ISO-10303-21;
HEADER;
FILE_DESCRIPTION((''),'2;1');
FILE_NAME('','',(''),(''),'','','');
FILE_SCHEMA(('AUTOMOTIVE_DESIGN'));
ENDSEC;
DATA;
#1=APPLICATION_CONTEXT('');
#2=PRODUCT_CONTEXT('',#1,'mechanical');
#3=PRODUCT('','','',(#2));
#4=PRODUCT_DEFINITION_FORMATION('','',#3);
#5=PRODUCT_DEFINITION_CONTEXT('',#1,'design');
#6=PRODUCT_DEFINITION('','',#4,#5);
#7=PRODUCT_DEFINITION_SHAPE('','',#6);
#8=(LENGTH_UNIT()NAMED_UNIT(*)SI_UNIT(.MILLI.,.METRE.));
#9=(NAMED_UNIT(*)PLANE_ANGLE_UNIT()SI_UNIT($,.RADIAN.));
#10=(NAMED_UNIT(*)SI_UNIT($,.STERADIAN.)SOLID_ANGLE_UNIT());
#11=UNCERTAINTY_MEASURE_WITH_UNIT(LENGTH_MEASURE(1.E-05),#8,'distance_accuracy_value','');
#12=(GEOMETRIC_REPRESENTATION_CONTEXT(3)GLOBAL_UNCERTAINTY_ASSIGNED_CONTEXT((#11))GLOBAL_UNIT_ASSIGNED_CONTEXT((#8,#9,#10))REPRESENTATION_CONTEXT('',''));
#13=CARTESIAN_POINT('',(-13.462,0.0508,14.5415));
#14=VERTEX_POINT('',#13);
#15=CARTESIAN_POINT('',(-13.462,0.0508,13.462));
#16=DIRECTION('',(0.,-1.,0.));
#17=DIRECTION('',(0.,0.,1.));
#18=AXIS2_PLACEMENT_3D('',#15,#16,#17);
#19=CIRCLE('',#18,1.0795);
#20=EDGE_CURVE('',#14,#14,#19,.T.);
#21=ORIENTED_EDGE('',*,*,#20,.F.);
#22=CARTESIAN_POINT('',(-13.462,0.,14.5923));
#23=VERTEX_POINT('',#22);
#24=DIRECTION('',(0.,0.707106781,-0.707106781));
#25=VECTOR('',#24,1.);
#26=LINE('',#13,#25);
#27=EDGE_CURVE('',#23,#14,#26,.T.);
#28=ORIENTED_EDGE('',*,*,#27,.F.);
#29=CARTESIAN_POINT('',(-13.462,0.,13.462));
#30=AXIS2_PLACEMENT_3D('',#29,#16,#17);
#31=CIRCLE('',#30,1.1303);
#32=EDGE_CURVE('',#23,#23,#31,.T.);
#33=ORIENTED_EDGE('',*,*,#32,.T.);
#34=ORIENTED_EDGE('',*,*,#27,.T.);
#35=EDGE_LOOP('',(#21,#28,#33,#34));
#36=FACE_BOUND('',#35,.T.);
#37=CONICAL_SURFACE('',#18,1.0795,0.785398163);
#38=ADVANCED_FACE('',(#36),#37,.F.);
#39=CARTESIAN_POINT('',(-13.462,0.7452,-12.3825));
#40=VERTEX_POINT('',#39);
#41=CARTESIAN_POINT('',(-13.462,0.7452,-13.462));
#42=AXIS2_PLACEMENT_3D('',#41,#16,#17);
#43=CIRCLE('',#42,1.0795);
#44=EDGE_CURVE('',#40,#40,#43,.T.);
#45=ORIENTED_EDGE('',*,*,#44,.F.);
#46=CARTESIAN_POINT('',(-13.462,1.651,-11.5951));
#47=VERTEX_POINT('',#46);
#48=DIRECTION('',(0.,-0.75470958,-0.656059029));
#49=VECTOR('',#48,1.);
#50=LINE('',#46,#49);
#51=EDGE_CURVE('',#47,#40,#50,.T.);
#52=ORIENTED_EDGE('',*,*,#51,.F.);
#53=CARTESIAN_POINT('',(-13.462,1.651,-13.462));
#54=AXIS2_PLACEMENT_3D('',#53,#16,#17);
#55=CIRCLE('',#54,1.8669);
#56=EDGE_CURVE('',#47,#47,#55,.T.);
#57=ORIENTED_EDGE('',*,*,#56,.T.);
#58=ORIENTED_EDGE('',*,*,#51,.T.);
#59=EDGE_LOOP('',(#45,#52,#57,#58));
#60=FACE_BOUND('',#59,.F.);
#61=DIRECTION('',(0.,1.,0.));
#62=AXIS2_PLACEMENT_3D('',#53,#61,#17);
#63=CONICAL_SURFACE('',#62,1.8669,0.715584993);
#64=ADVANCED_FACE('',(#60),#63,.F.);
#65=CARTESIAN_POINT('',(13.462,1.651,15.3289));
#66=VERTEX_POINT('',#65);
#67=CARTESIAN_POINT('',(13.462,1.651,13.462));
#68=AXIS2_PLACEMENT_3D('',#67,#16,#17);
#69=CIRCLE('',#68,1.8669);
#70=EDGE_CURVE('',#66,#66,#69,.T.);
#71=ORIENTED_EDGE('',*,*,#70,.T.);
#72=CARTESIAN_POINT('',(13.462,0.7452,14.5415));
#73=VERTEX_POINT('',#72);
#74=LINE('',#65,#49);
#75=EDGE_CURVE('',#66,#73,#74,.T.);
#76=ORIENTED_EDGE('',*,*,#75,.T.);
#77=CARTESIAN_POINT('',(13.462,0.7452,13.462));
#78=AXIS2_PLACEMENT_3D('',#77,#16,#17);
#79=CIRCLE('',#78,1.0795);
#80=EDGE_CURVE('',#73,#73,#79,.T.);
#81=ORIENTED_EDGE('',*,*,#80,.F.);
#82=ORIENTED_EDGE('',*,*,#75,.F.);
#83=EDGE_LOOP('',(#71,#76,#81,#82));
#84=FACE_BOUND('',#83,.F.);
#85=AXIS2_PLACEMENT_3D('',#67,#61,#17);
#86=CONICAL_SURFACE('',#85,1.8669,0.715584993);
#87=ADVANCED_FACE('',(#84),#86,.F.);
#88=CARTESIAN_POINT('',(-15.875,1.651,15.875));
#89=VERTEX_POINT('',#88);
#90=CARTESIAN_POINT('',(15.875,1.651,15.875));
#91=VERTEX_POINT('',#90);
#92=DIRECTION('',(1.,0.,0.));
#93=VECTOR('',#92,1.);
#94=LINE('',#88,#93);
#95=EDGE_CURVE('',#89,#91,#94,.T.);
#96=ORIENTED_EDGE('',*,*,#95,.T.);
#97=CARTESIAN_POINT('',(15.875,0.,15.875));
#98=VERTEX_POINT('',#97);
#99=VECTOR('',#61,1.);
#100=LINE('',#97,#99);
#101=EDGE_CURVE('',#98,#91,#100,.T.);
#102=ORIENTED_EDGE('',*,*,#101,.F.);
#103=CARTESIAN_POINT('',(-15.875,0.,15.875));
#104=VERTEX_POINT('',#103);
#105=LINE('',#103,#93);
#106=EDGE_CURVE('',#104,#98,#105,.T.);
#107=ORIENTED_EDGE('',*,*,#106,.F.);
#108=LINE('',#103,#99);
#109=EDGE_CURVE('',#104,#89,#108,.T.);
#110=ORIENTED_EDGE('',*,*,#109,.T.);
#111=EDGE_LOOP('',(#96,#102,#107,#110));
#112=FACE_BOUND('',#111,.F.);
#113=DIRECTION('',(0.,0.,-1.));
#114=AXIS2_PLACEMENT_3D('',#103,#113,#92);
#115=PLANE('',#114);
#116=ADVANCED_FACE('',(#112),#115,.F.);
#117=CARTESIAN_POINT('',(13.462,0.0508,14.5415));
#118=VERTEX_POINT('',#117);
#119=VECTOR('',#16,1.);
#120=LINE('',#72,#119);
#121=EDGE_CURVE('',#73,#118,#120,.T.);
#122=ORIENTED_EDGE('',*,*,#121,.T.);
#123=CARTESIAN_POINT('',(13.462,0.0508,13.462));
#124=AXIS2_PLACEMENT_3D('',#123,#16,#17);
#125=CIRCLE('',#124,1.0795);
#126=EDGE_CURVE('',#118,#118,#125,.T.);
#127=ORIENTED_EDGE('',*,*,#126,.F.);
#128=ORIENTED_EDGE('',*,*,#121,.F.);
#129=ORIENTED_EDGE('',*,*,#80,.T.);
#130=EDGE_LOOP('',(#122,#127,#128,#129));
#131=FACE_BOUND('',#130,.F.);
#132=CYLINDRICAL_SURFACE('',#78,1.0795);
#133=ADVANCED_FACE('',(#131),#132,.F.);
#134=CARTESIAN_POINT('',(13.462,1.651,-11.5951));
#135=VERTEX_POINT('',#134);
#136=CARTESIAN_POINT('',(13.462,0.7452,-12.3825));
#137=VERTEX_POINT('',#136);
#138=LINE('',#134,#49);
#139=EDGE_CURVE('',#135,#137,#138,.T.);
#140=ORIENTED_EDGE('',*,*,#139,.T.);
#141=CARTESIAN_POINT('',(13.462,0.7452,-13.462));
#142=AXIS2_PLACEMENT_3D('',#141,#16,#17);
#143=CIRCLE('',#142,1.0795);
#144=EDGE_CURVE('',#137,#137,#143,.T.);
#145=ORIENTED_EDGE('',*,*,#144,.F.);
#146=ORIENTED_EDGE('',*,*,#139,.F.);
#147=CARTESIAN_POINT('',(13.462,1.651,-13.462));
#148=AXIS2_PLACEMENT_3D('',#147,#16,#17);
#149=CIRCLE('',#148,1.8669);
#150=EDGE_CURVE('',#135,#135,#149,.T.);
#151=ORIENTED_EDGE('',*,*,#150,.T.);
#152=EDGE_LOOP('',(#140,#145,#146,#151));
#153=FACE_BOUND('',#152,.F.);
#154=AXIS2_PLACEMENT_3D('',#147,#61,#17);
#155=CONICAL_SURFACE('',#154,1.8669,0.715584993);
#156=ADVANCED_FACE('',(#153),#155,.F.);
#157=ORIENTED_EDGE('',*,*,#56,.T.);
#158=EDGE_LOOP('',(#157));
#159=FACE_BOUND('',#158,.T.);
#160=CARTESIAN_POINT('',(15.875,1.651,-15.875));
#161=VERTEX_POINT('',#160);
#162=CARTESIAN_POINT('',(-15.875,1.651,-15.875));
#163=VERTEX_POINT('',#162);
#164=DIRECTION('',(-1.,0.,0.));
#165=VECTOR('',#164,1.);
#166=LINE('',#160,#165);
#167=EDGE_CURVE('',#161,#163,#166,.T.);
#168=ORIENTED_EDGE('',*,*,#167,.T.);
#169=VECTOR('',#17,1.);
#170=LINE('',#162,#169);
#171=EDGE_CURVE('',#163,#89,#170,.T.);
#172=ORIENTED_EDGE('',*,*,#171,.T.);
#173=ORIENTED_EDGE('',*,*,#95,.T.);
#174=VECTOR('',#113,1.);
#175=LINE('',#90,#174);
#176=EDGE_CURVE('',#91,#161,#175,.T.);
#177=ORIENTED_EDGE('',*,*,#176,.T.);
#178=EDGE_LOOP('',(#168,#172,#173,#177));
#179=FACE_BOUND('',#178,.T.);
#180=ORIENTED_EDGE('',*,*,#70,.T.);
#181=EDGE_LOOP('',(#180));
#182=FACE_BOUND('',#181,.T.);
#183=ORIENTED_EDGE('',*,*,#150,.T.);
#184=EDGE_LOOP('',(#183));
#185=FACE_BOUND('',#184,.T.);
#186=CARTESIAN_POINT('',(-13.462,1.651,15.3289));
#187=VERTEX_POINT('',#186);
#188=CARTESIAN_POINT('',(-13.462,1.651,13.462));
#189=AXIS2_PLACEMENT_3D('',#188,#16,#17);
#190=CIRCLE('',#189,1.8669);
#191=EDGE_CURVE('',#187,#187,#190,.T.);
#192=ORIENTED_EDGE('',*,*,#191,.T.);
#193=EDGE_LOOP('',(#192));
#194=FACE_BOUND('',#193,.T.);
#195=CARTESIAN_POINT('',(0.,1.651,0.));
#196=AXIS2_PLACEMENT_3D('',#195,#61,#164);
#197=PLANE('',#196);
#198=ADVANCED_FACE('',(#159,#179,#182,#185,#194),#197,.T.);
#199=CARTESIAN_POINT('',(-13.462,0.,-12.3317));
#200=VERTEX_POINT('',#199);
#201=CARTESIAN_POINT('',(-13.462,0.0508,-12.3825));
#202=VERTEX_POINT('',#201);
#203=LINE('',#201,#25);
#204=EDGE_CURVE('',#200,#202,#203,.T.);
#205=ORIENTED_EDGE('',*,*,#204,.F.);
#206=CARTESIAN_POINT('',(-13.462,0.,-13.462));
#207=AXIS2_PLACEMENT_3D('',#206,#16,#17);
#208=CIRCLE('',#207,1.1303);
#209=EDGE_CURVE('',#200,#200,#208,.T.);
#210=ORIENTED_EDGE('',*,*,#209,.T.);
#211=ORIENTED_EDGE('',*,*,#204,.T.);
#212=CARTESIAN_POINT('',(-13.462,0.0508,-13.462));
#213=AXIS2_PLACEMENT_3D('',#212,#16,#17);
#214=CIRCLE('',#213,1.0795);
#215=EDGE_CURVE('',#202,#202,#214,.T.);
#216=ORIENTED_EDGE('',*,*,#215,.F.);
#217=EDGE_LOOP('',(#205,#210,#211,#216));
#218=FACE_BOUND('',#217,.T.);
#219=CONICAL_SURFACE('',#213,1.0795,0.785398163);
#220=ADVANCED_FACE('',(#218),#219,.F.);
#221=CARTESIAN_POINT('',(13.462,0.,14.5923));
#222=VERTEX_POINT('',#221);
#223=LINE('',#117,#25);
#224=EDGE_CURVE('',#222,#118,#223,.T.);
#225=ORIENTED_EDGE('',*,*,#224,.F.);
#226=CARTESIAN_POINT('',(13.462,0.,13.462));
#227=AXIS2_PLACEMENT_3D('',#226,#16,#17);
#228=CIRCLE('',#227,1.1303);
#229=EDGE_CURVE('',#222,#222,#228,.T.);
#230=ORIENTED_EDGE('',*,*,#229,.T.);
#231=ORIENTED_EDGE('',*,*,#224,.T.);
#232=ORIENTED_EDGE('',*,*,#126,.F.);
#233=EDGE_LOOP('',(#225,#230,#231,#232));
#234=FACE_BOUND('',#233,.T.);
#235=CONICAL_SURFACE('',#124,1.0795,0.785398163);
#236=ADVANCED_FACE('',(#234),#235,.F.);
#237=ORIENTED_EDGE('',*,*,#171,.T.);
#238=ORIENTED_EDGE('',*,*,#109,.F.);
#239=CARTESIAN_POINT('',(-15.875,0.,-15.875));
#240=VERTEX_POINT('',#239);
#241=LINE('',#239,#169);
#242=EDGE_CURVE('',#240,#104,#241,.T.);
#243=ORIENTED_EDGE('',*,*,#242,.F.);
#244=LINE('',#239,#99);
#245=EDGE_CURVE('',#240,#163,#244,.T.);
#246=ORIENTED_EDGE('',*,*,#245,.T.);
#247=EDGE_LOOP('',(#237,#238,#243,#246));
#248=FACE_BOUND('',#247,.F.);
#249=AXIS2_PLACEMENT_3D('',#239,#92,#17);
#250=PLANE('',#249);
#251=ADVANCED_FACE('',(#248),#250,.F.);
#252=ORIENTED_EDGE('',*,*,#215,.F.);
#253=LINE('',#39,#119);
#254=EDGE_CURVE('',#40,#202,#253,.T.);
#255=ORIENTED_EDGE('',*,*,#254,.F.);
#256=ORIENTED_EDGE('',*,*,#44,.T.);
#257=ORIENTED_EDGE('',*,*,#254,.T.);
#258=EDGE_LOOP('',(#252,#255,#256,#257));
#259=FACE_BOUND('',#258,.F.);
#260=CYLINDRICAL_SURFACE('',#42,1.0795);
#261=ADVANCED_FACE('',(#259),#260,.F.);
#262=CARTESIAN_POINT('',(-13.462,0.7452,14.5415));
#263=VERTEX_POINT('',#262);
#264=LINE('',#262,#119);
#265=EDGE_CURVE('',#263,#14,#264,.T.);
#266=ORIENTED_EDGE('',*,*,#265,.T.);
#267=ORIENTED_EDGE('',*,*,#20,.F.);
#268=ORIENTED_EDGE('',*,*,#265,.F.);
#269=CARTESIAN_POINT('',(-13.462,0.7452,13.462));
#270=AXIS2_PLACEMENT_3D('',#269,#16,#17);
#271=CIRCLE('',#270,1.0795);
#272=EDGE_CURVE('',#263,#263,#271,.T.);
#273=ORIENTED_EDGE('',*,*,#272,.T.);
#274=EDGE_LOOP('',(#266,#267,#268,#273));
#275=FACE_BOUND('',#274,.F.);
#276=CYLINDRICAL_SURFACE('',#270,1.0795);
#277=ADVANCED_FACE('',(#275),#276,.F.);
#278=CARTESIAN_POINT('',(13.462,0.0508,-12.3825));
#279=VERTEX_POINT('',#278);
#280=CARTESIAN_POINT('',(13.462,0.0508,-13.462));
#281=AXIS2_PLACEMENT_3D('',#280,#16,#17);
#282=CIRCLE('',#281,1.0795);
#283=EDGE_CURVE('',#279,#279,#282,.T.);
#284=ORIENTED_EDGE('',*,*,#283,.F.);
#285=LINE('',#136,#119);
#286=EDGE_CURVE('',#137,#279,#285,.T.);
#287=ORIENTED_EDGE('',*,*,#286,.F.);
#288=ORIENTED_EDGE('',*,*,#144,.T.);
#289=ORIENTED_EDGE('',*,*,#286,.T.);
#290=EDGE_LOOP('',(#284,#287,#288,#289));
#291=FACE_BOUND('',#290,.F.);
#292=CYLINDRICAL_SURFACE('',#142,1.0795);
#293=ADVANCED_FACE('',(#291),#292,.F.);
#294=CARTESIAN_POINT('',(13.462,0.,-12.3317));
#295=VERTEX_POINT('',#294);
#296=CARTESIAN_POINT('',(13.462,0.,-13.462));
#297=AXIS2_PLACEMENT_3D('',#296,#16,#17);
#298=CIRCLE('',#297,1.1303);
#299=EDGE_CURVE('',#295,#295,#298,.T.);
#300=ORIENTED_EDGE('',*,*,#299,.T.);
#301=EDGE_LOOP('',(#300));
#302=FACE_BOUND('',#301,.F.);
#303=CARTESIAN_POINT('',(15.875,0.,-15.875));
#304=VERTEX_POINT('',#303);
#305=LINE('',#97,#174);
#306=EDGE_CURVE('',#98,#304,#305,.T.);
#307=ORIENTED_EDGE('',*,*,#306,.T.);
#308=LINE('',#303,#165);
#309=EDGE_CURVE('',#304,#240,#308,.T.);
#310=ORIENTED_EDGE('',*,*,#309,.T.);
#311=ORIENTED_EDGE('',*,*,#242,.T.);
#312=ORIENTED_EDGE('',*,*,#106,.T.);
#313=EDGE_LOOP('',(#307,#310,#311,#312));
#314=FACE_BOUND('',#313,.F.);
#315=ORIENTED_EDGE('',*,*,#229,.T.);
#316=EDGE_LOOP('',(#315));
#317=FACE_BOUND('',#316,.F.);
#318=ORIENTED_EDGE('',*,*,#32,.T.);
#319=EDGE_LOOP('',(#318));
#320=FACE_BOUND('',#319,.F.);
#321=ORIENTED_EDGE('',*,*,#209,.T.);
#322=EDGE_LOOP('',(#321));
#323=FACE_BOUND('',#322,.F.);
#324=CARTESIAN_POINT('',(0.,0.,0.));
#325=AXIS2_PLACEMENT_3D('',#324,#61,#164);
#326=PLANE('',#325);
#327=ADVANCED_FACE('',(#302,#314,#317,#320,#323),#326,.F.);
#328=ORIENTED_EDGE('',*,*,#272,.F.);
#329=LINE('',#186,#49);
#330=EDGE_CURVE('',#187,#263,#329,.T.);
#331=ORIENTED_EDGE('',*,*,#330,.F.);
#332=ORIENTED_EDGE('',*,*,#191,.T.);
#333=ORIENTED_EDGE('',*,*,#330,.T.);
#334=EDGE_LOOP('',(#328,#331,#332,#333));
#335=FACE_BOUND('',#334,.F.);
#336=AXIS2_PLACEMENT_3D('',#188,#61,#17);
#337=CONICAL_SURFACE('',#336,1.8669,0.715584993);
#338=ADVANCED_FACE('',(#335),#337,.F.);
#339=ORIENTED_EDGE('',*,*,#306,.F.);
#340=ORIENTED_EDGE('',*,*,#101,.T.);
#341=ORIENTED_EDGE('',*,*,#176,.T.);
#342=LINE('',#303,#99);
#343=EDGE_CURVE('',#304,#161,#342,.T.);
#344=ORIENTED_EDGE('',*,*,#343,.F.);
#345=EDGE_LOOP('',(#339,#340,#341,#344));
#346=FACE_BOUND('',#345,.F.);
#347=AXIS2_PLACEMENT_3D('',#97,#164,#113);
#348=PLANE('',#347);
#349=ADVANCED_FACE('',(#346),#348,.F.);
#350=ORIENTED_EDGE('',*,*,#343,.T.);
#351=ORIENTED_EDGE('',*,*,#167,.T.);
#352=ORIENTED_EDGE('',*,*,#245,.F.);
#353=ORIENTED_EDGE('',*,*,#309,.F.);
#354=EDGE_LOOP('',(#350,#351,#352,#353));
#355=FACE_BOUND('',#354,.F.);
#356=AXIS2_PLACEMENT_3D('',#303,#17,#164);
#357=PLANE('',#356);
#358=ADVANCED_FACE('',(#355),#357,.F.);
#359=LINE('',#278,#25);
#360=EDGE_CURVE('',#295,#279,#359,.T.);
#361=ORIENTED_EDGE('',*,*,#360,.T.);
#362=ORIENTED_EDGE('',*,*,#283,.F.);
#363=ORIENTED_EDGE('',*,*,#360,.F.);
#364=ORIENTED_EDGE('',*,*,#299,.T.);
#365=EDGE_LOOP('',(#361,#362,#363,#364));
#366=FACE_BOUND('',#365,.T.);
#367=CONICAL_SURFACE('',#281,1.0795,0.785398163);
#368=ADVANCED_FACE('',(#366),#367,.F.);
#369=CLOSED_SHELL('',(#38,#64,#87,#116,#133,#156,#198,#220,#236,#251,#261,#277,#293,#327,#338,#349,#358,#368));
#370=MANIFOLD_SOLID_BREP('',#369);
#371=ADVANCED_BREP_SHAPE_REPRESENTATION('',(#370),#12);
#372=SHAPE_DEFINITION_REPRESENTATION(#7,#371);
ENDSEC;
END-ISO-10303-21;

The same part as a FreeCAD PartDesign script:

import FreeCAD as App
import Part
import Sketcher
Q = App.Units.Quantity


def edges_at(feature, points):
    """Names of the edges that pass closest to the given points."""
    edges = feature.Shape.Edges
    near = lambda p: min(range(len(edges)), key=lambda i: edges[i].distToShape(Part.Vertex(*p))[0])
    return sorted({f"Edge{near(p) + 1}" for p in points})

doc = App.newDocument("Part")
params = doc.addObject("Spreadsheet::Sheet", "Params")
for row, (alias, value) in enumerate([
    ("sketch1_width", "1.25 in"),
    ("pad1_length", "0.065 in"),
    ("sketch2_diameter", "0.085 in"),
    ("hole_diameter", "0.085 in"),
    ("hole_depth", "0.065 in"),
    ("hole_csink_diameter", "0.147 in"),
    ("sketch3_diameter", "0.085 in"),
    ("hole2_diameter", "0.085 in"),
    ("hole2_depth", "0.065 in"),
    ("hole2_csink_diameter", "0.147 in"),
    ("sketch4_diameter", "0.085 in"),
    ("hole3_diameter", "0.085 in"),
    ("hole3_depth", "0.065 in"),
    ("hole3_csink_diameter", "0.147 in"),
    ("sketch5_diameter", "0.085 in"),
    ("hole4_diameter", "0.085 in"),
    ("hole4_depth", "0.065 in"),
    ("hole4_csink_diameter", "0.147 in"),
    ("chamfer_size", "0.002 in"),
    ("chamfer2_size", "0.002 in"),
    ("chamfer3_size", "0.002 in"),
    ("chamfer4_size", "0.002 in"),
], start=1):
    params.set(f"A{row}", alias)
    params.set(f"B{row}", "=" + value)
    params.setAlias(f"B{row}", alias)

body = doc.addObject("PartDesign::Body", "Body")

# Sketch on XZ plane
sketch1 = body.newObject("Sketcher::SketchObject", "Sketch")
sketch1.AttachmentSupport = (doc.getObject("XZ_Plane"), [""])
sketch1.MapMode = "FlatFace"
sketch1.addGeometry([
    Part.LineSegment(App.Vector(15.875, 15.875, 0), App.Vector(15.875, -15.875, 0)),
    Part.LineSegment(App.Vector(15.875, -15.875, 0), App.Vector(-15.875, -15.875, 0)),
    Part.LineSegment(App.Vector(-15.875, -15.875, 0), App.Vector(-15.875, 15.875, 0)),
    Part.LineSegment(App.Vector(-15.875, 15.875, 0), App.Vector(15.875, 15.875, 0)),
], False)
sketch1.addConstraint([
    Sketcher.Constraint("Coincident", 0, 2, 1, 1),
    Sketcher.Constraint("Coincident", 1, 2, 2, 1),
    Sketcher.Constraint("Coincident", 2, 2, 3, 1),
    Sketcher.Constraint("Coincident", 3, 2, 0, 1),
    Sketcher.Constraint("Vertical", 0),
    Sketcher.Constraint("Horizontal", 1),
    Sketcher.Constraint("Vertical", 2),
    Sketcher.Constraint("Horizontal", 3),
    Sketcher.Constraint("Symmetric", 0, 2, 2, 2, -1, 1),
    Sketcher.Constraint("Equal", 3, 0),
    Sketcher.Constraint("DistanceX", 1, 2, 1, 1, Q("1.25 in")),
])
sketch1.setExpression("Constraints[10]", "Params.sketch1_width")
pad1 = body.newObject("PartDesign::Pad", "Pad")
pad1.Profile = sketch1
pad1.setExpression("Length", "Params.pad1_length")
pad1.Reversed = True

# Sketch on XZ plane
sketch2 = body.newObject("Sketcher::SketchObject", "Sketch001")
sketch2.AttachmentSupport = (doc.getObject("XZ_Plane"), [""])
sketch2.MapMode = "FlatFace"
sketch2.AttachmentOffset = App.Placement(App.Vector(0, 0, -0.065 * 25.4), App.Rotation())
sketch2.addGeometry(Part.Circle(App.Vector(-13.462, 13.462, 0), App.Vector(0, 0, 1), 1.0795), False)
sketch2.addConstraint([
    Sketcher.Constraint("Diameter", 0, Q("0.085 in")),
    Sketcher.Constraint("DistanceX", 0, 3, -1, 1, Q("0.53 in")),
    Sketcher.Constraint("DistanceY", -1, 1, 0, 3, Q("0.53 in")),
])
sketch2.setExpression("Constraints[0]", "Params.sketch2_diameter")
doc.recompute()
hole = body.newObject("PartDesign::Hole", "Hole")
hole.Profile = sketch2
hole.ThreadType = "None"
hole.setExpression("Diameter", "Params.hole_diameter")
hole.DepthType = "Dimension"
hole.setExpression("Depth", "Params.hole_depth")
hole.DrillPoint = "Angled"
hole.DrillPointAngle = 118
hole.HoleCutType = "Countersink"
hole.setExpression("HoleCutDiameter", "Params.hole_csink_diameter")
hole.HoleCutCountersinkAngle = 82
hole.Reversed = True

# Sketch on XZ plane
sketch3 = body.newObject("Sketcher::SketchObject", "Sketch002")
sketch3.AttachmentSupport = (doc.getObject("XZ_Plane"), [""])
sketch3.MapMode = "FlatFace"
sketch3.AttachmentOffset = App.Placement(App.Vector(0, 0, -0.065 * 25.4), App.Rotation())
sketch3.addGeometry(Part.Circle(App.Vector(-13.462, -13.462, 0), App.Vector(0, 0, 1), 1.0795), False)
sketch3.addConstraint([
    Sketcher.Constraint("Diameter", 0, Q("0.085 in")),
    Sketcher.Constraint("DistanceX", 0, 3, -1, 1, Q("0.53 in")),
    Sketcher.Constraint("DistanceY", 0, 3, -1, 1, Q("0.53 in")),
])
sketch3.setExpression("Constraints[0]", "Params.sketch3_diameter")
doc.recompute()
hole2 = body.newObject("PartDesign::Hole", "Hole001")
hole2.Profile = sketch3
hole2.ThreadType = "None"
hole2.setExpression("Diameter", "Params.hole2_diameter")
hole2.DepthType = "Dimension"
hole2.setExpression("Depth", "Params.hole2_depth")
hole2.DrillPoint = "Angled"
hole2.DrillPointAngle = 118
hole2.HoleCutType = "Countersink"
hole2.setExpression("HoleCutDiameter", "Params.hole2_csink_diameter")
hole2.HoleCutCountersinkAngle = 82
hole2.Reversed = True

# Sketch on XZ plane
sketch4 = body.newObject("Sketcher::SketchObject", "Sketch003")
sketch4.AttachmentSupport = (doc.getObject("XZ_Plane"), [""])
sketch4.MapMode = "FlatFace"
sketch4.AttachmentOffset = App.Placement(App.Vector(0, 0, -0.065 * 25.4), App.Rotation())
sketch4.addGeometry(Part.Circle(App.Vector(13.462, -13.462, 0), App.Vector(0, 0, 1), 1.0795), False)
sketch4.addConstraint([
    Sketcher.Constraint("Diameter", 0, Q("0.085 in")),
    Sketcher.Constraint("DistanceX", -1, 1, 0, 3, Q("0.53 in")),
    Sketcher.Constraint("DistanceY", 0, 3, -1, 1, Q("0.53 in")),
])
sketch4.setExpression("Constraints[0]", "Params.sketch4_diameter")
doc.recompute()
hole3 = body.newObject("PartDesign::Hole", "Hole002")
hole3.Profile = sketch4
hole3.ThreadType = "None"
hole3.setExpression("Diameter", "Params.hole3_diameter")
hole3.DepthType = "Dimension"
hole3.setExpression("Depth", "Params.hole3_depth")
hole3.DrillPoint = "Angled"
hole3.DrillPointAngle = 118
hole3.HoleCutType = "Countersink"
hole3.setExpression("HoleCutDiameter", "Params.hole3_csink_diameter")
hole3.HoleCutCountersinkAngle = 82
hole3.Reversed = True

# Sketch on XZ plane
sketch5 = body.newObject("Sketcher::SketchObject", "Sketch004")
sketch5.AttachmentSupport = (doc.getObject("XZ_Plane"), [""])
sketch5.MapMode = "FlatFace"
sketch5.AttachmentOffset = App.Placement(App.Vector(0, 0, -0.065 * 25.4), App.Rotation())
sketch5.addGeometry(Part.Circle(App.Vector(13.462, 13.462, 0), App.Vector(0, 0, 1), 1.0795), False)
sketch5.addConstraint([
    Sketcher.Constraint("Diameter", 0, Q("0.085 in")),
    Sketcher.Constraint("DistanceX", -1, 1, 0, 3, Q("0.53 in")),
    Sketcher.Constraint("DistanceY", -1, 1, 0, 3, Q("0.53 in")),
])
sketch5.setExpression("Constraints[0]", "Params.sketch5_diameter")
doc.recompute()
hole4 = body.newObject("PartDesign::Hole", "Hole003")
hole4.Profile = sketch5
hole4.ThreadType = "None"
hole4.setExpression("Diameter", "Params.hole4_diameter")
hole4.DepthType = "Dimension"
hole4.setExpression("Depth", "Params.hole4_depth")
hole4.DrillPoint = "Angled"
hole4.DrillPointAngle = 118
hole4.HoleCutType = "Countersink"
hole4.setExpression("HoleCutDiameter", "Params.hole4_csink_diameter")
hole4.HoleCutCountersinkAngle = 82
hole4.Reversed = True
doc.recompute()

chamfer = body.newObject("PartDesign::Chamfer", "Chamfer")
chamfer.Base = (hole4, edges_at(hole4, [(-13.462, 0, 12.383)]))
chamfer.setExpression("Size", "Params.chamfer_size")
doc.recompute()

chamfer2 = body.newObject("PartDesign::Chamfer", "Chamfer001")
chamfer2.Base = (chamfer, edges_at(chamfer, [(13.462, 0, 12.383)]))
chamfer2.setExpression("Size", "Params.chamfer2_size")
doc.recompute()

chamfer3 = body.newObject("PartDesign::Chamfer", "Chamfer002")
chamfer3.Base = (chamfer2, edges_at(chamfer2, [(13.462, 0, -14.541)]))
chamfer3.setExpression("Size", "Params.chamfer3_size")
doc.recompute()

chamfer4 = body.newObject("PartDesign::Chamfer", "Chamfer003")
chamfer4.Base = (chamfer3, edges_at(chamfer3, [(-13.462, 0, -14.541)]))
chamfer4.setExpression("Size", "Params.chamfer4_size")

doc.recompute()
